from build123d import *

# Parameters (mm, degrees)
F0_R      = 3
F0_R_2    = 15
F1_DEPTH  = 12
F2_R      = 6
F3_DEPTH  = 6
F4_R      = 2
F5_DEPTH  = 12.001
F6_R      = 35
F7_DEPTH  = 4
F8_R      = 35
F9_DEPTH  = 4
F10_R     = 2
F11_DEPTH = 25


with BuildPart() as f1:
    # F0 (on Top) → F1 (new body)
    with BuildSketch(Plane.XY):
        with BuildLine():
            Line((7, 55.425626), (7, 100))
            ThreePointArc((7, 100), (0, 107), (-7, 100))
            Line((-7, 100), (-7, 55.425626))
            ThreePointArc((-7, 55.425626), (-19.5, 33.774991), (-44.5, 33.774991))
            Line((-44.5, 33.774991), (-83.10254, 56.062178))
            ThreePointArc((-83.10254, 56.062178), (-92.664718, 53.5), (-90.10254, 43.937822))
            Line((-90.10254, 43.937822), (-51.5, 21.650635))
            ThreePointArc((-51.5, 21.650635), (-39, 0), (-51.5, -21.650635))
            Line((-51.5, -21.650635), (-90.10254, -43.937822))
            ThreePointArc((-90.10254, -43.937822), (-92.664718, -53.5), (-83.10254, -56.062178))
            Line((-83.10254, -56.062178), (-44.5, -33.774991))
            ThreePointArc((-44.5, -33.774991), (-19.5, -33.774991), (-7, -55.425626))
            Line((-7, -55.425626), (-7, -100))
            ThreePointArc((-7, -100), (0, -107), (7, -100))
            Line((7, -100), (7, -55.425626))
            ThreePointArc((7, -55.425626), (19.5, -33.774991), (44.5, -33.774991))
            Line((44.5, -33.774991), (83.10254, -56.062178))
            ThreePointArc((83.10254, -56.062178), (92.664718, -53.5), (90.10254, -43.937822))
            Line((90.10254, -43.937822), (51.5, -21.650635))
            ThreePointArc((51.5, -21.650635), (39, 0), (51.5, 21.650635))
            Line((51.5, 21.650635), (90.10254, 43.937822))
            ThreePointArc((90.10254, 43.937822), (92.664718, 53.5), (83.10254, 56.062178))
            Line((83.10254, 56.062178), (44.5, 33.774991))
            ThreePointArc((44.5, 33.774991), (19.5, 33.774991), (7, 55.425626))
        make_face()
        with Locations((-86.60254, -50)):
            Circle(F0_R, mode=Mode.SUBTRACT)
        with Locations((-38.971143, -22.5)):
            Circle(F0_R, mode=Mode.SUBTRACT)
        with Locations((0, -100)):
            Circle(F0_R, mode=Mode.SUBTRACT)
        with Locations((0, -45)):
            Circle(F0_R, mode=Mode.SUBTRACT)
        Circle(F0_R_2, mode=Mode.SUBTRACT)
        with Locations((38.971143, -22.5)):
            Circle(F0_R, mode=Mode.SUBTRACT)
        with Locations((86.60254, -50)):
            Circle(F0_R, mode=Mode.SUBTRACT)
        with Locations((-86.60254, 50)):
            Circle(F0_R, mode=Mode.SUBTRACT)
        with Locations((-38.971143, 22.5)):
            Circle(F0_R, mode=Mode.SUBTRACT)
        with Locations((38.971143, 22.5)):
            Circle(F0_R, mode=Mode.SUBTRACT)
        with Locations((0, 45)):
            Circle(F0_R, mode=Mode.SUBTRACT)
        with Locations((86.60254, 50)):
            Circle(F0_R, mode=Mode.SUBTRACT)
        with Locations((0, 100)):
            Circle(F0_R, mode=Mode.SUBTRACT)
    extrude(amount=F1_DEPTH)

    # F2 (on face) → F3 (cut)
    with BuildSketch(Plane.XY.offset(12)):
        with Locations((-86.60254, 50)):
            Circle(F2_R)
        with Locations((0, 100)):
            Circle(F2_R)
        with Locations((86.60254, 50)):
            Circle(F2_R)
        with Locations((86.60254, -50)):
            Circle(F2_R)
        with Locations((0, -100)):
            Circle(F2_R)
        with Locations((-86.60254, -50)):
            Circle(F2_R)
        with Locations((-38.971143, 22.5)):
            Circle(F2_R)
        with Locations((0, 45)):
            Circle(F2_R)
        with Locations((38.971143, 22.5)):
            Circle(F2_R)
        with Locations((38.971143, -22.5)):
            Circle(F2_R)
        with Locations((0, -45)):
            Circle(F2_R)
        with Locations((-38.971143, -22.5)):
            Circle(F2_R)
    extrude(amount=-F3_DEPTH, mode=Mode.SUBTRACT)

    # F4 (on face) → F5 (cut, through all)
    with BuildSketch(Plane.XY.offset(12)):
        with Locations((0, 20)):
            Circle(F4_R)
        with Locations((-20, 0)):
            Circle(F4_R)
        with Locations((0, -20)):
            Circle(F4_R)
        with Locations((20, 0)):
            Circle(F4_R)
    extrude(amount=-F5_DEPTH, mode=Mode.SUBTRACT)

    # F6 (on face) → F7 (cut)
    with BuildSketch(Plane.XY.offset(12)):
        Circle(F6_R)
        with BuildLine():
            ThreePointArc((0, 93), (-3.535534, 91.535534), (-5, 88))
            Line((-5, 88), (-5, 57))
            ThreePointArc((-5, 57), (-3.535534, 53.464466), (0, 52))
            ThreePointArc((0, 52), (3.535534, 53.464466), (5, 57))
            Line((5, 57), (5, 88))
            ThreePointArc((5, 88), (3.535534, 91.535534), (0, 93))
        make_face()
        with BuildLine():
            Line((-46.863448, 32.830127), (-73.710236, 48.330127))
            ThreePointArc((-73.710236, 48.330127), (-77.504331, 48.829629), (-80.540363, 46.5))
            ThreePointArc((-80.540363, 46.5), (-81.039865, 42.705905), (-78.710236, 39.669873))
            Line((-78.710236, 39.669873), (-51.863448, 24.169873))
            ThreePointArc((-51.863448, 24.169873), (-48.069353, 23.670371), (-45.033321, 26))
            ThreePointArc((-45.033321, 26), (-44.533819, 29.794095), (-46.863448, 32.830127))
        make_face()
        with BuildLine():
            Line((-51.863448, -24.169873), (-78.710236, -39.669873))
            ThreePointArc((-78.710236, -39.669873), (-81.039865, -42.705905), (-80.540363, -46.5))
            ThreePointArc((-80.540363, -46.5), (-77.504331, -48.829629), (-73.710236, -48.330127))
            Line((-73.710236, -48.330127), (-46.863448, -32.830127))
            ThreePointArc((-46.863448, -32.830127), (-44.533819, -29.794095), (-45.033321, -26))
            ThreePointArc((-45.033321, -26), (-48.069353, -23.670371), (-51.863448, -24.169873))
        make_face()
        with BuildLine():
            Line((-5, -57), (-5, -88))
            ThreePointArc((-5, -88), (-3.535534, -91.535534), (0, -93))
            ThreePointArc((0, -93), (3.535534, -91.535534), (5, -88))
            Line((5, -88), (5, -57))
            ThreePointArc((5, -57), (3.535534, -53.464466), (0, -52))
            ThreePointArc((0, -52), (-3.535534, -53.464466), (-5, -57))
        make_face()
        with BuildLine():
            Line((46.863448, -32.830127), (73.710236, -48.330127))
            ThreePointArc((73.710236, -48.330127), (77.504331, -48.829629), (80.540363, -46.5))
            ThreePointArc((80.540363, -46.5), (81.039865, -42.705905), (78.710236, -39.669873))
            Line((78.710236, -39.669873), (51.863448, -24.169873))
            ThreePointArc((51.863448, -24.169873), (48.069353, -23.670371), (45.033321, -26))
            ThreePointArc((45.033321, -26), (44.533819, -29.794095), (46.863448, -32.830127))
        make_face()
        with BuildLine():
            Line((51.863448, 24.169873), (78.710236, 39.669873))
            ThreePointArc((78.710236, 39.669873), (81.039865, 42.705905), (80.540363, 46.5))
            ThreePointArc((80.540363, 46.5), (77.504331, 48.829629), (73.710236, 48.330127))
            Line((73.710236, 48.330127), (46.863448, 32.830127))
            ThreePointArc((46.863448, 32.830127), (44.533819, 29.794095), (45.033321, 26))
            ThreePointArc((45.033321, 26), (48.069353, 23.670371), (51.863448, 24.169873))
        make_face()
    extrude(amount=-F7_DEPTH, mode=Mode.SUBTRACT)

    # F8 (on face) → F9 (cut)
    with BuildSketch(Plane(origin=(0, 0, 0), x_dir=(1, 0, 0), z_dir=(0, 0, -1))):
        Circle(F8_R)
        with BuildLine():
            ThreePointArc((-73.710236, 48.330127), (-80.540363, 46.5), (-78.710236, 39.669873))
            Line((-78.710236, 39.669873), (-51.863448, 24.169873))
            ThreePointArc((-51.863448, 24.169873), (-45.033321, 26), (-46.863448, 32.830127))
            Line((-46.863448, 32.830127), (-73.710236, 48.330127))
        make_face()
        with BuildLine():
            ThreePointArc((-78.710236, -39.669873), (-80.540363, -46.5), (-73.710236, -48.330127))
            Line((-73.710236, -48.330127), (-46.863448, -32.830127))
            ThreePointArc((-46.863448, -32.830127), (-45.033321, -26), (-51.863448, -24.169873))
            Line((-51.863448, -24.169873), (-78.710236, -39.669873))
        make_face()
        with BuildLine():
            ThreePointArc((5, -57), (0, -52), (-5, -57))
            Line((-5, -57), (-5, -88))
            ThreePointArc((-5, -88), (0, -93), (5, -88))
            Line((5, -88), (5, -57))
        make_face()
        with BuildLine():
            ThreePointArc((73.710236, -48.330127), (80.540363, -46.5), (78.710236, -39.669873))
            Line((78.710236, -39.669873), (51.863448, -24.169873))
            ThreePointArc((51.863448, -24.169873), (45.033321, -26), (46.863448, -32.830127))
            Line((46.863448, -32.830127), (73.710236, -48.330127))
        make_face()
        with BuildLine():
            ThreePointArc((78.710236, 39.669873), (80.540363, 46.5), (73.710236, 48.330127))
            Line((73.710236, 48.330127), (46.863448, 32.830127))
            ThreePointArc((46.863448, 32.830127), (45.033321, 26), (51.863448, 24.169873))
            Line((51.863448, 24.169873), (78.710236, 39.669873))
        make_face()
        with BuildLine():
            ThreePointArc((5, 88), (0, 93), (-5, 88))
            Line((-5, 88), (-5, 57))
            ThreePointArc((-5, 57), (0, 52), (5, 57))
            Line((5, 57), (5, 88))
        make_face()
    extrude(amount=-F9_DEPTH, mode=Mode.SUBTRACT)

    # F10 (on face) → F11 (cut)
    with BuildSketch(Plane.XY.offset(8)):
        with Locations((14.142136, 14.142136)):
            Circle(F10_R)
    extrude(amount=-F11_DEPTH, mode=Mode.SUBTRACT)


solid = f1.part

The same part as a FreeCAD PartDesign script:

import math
import FreeCAD as App
import Part
import Sketcher
Q = App.Units.Quantity

doc = App.newDocument("Part")
params = doc.addObject("Spreadsheet::Sheet", "Params")
for row, (alias, value) in enumerate([
    ("sketch1_diameter", "6 mm"),
    ("sketch1_diameter2", "30 mm"),
    ("sketch1_radius", "7 mm"),
    ("sketch1_radius2", "25 mm"),
    ("pad1_length", "12 mm"),
    ("sketch2_diameter", "12 mm"),
    ("pocket1_length", "6 mm"),
    ("sketch3_diameter", "4 mm"),
    ("sketch4_diameter", "70 mm"),
    ("sketch4_radius", "5 mm"),
    ("sketch4_height", "31 mm"),
    ("sketch4_length", "31 mm"),
    ("pocket3_length", "4 mm"),
    ("sketch5_diameter", "70 mm"),
    ("sketch5_radius", "5 mm"),
    ("sketch5_height", "31 mm"),
    ("sketch5_length", "31 mm"),
    ("pocket4_length", "4 mm"),
    ("sketch6_diameter", "4 mm"),
    ("pocket5_length", "25 mm"),
], start=1):
    params.set(f"A{row}", alias)
    params.set(f"B{row}", "=" + value)
    params.setAlias(f"B{row}", alias)

body = doc.addObject("PartDesign::Body", "Body")

sketch1 = doc.addObject("Sketcher::SketchObject", "Sketch")
body.addObject(sketch1)
sketch1.AttachmentSupport = (doc.XY_Plane, [""])
sketch1.MapMode = "FlatFace"
sketch1.addGeometry(Part.LineSegment(App.Vector(7, 55.4, 0), App.Vector(7, 100, 0)), False)
sketch1.addGeometry(Part.ArcOfCircle(Part.Circle(App.Vector(0, 100, 0), App.Vector(0, 0, 1), 7), math.radians(0), math.radians(180)), False)
sketch1.addGeometry(Part.LineSegment(App.Vector(-7, 100, 0), App.Vector(-7, 55.4, 0)), False)
sketch1.addGeometry(Part.ArcOfCircle(Part.Circle(App.Vector(-32, 55.4, 0), App.Vector(0, 0, 1), 25), math.radians(-120), math.radians(0)), False)
sketch1.addGeometry(Part.LineSegment(App.Vector(-44.5, 33.8, 0), App.Vector(-83.1, 56.1, 0)), False)
sketch1.addGeometry(Part.ArcOfCircle(Part.Circle(App.Vector(-86.6, 50, 0), App.Vector(0, 0, 1), 7), math.radians(60), math.radians(240)), False)
sketch1.addGeometry(Part.LineSegment(App.Vector(-90.1, 43.9, 0), App.Vector(-51.5, 21.7, 0)), False)
sketch1.addGeometry(Part.ArcOfCircle(Part.Circle(App.Vector(-64, 0, 0), App.Vector(0, 0, 1), 25), math.radians(-60), math.radians(60)), False)
sketch1.addGeometry(Part.LineSegment(App.Vector(-51.5, -21.7, 0), App.Vector(-90.1, -43.9, 0)), False)
sketch1.addGeometry(Part.ArcOfCircle(Part.Circle(App.Vector(-86.6, -50, 0), App.Vector(0, 0, 1), 7), math.radians(120), math.radians(300)), False)
sketch1.addGeometry(Part.LineSegment(App.Vector(-83.1, -56.1, 0), App.Vector(-44.5, -33.8, 0)), False)
sketch1.addGeometry(Part.ArcOfCircle(Part.Circle(App.Vector(-32, -55.4, 0), App.Vector(0, 0, 1), 25), math.radians(0), math.radians(120)), False)
sketch1.addGeometry(Part.LineSegment(App.Vector(-7, -55.4, 0), App.Vector(-7, -100, 0)), False)
sketch1.addGeometry(Part.ArcOfCircle(Part.Circle(App.Vector(0, -100, 0), App.Vector(0, 0, 1), 7), math.radians(180), math.radians(360)), False)
sketch1.addGeometry(Part.LineSegment(App.Vector(7, -100, 0), App.Vector(7, -55.4, 0)), False)
sketch1.addGeometry(Part.ArcOfCircle(Part.Circle(App.Vector(32, -55.4, 0), App.Vector(0, 0, 1), 25), math.radians(60), math.radians(180)), False)
sketch1.addGeometry(Part.LineSegment(App.Vector(44.5, -33.8, 0), App.Vector(83.1, -56.1, 0)), False)
sketch1.addGeometry(Part.ArcOfCircle(Part.Circle(App.Vector(86.6, -50, 0), App.Vector(0, 0, 1), 7), math.radians(-120), math.radians(60)), False)
sketch1.addGeometry(Part.LineSegment(App.Vector(90.1, -43.9, 0), App.Vector(51.5, -21.7, 0)), False)
sketch1.addGeometry(Part.ArcOfCircle(Part.Circle(App.Vector(64, 0, 0), App.Vector(0, 0, 1), 25), math.radians(120), math.radians(240)), False)
sketch1.addGeometry(Part.LineSegment(App.Vector(51.5, 21.7, 0), App.Vector(90.1, 43.9, 0)), False)
sketch1.addGeometry(Part.ArcOfCircle(Part.Circle(App.Vector(86.6, 50, 0), App.Vector(0, 0, 1), 7), math.radians(-60), math.radians(120)), False)
sketch1.addGeometry(Part.LineSegment(App.Vector(83.1, 56.1, 0), App.Vector(44.5, 33.8, 0)), False)
sketch1.addGeometry(Part.ArcOfCircle(Part.Circle(App.Vector(32, 55.4, 0), App.Vector(0, 0, 1), 25), math.radians(-180), math.radians(-60)), False)
sketch1.addGeometry(Part.Circle(App.Vector(-86.6, -50, 0), App.Vector(0, 0, 1), 3), False)
sketch1.addGeometry(Part.Circle(App.Vector(-39, -22.5, 0), App.Vector(0, 0, 1), 3), False)
sketch1.addGeometry(Part.Circle(App.Vector(0, -100, 0), App.Vector(0, 0, 1), 3), False)
sketch1.addGeometry(Part.Circle(App.Vector(0, -45, 0), App.Vector(0, 0, 1), 3), False)
sketch1.addGeometry(Part.Circle(App.Vector(0, 0, 0), App.Vector(0, 0, 1), 15), False)
sketch1.addGeometry(Part.Circle(App.Vector(39, -22.5, 0), App.Vector(0, 0, 1), 3), False)
sketch1.addGeometry(Part.Circle(App.Vector(86.6, -50, 0), App.Vector(0, 0, 1), 3), False)
sketch1.addGeometry(Part.Circle(App.Vector(-86.6, 50, 0), App.Vector(0, 0, 1), 3), False)
sketch1.addGeometry(Part.Circle(App.Vector(-39, 22.5, 0), App.Vector(0, 0, 1), 3), False)
sketch1.addGeometry(Part.Circle(App.Vector(39, 22.5, 0), App.Vector(0, 0, 1), 3), False)
sketch1.addGeometry(Part.Circle(App.Vector(0, 45, 0), App.Vector(0, 0, 1), 3), False)
sketch1.addGeometry(Part.Circle(App.Vector(86.6, 50, 0), App.Vector(0, 0, 1), 3), False)
sketch1.addGeometry(Part.Circle(App.Vector(0, 100, 0), App.Vector(0, 0, 1), 3), False)
sketch1.addConstraint(Sketcher.Constraint("Tangent", 0, 2, 1, 1))
sketch1.addConstraint(Sketcher.Constraint("Tangent", 1, 2, 2, 1))
sketch1.addConstraint(Sketcher.Constraint("Tangent", 2, 2, 3, 2))
sketch1.addConstraint(Sketcher.Constraint("Tangent", 3, 1, 4, 1))
sketch1.addConstraint(Sketcher.Constraint("Tangent", 4, 2, 5, 1))
sketch1.addConstraint(Sketcher.Constraint("Tangent", 5, 2, 6, 1))
sketch1.addConstraint(Sketcher.Constraint("Tangent", 6, 2, 7, 2))
sketch1.addConstraint(Sketcher.Constraint("Tangent", 7, 1, 8, 1))
sketch1.addConstraint(Sketcher.Constraint("Tangent", 8, 2, 9, 1))
sketch1.addConstraint(Sketcher.Constraint("Tangent", 9, 2, 10, 1))
sketch1.addConstraint(Sketcher.Constraint("Tangent", 10, 2, 11, 2))
sketch1.addConstraint(Sketcher.Constraint("Tangent", 11, 1, 12, 1))
sketch1.addConstraint(Sketcher.Constraint("Tangent", 12, 2, 13, 1))
sketch1.addConstraint(Sketcher.Constraint("Tangent", 13, 2, 14, 1))
sketch1.addConstraint(Sketcher.Constraint("Tangent", 14, 2, 15, 2))
sketch1.addConstraint(Sketcher.Constraint("Tangent", 15, 1, 16, 1))
sketch1.addConstraint(Sketcher.Constraint("Tangent", 16, 2, 17, 1))
sketch1.addConstraint(Sketcher.Constraint("Tangent", 17, 2, 18, 1))
sketch1.addConstraint(Sketcher.Constraint("Tangent", 18, 2, 19, 2))
sketch1.addConstraint(Sketcher.Constraint("Tangent", 19, 1, 20, 1))
sketch1.addConstraint(Sketcher.Constraint("Tangent", 20, 2, 21, 1))
sketch1.addConstraint(Sketcher.Constraint("Tangent", 21, 2, 22, 1))
sketch1.addConstraint(Sketcher.Constraint("Tangent", 22, 2, 23, 2))
sketch1.addConstraint(Sketcher.Constraint("Tangent", 23, 1, 0, 1))
sketch1.addConstraint(Sketcher.Constraint("Vertical", 0))
sketch1.addConstraint(Sketcher.Constraint("Vertical", 2))
sketch1.addConstraint(Sketcher.Constraint("Vertical", 12))
sketch1.addConstraint(Sketcher.Constraint("Vertical", 14))
sketch1.addConstraint(Sketcher.Constraint("Coincident", 28, 3, -1, 1))
sketch1.addConstraint(Sketcher.Constraint("Coincident", 24, 3, 9, 3))
sketch1.addConstraint(Sketcher.Constraint("Coincident", 26, 3, 13, 3))
sketch1.addConstraint(Sketcher.Constraint("Coincident", 30, 3, 17, 3))
sketch1.addConstraint(Sketcher.Constraint("Coincident", 31, 3, 5, 3))
sketch1.addConstraint(Sketcher.Constraint("Coincident", 35, 3, 21, 3))
sketch1.addConstraint(Sketcher.Constraint("Coincident", 36, 3, 1, 3))
sketch1.addConstraint(Sketcher.Constraint("Equal", 1, 5))
sketch1.addConstraint(Sketcher.Constraint("Equal", 3, 7))
sketch1.addConstraint(Sketcher.Constraint("Equal", 5, 9))
sketch1.addConstraint(Sketcher.Constraint("Equal", 7, 11))
sketch1.addConstraint(Sketcher.Constraint("Equal", 9, 13))
sketch1.addConstraint(Sketcher.Constraint("Equal", 11, 15))
sketch1.addConstraint(Sketcher.Constraint("Equal", 13, 17))
sketch1.addConstraint(Sketcher.Constraint("Equal", 15, 19))
sketch1.addConstraint(Sketcher.Constraint("Equal", 17, 21))
sketch1.addConstraint(Sketcher.Constraint("Equal", 19, 23))
sketch1.addConstraint(Sketcher.Constraint("Equal", 24, 25))
sketch1.addConstraint(Sketcher.Constraint("Equal", 25, 26))
sketch1.addConstraint(Sketcher.Constraint("Equal", 26, 27))
sketch1.addConstraint(Sketcher.Constraint("Equal", 27, 29))
sketch1.addConstraint(Sketcher.Constraint("Equal", 29, 30))
sketch1.addConstraint(Sketcher.Constraint("Equal", 30, 31))
sketch1.addConstraint(Sketcher.Constraint("Equal", 31, 32))
sketch1.addConstraint(Sketcher.Constraint("Equal", 32, 33))
sketch1.addConstraint(Sketcher.Constraint("Equal", 33, 34))
sketch1.addConstraint(Sketcher.Constraint("Equal", 34, 35))
sketch1.addConstraint(Sketcher.Constraint("Equal", 35, 36))
sketch1.addConstraint(Sketcher.Constraint("Symmetric", 1, 3, 13, 3, -1, 1))
sketch1.addConstraint(Sketcher.Constraint("Symmetric", 5, 3, 17, 3, -1, 1))
sketch1.addConstraint(Sketcher.Constraint("Symmetric", 7, 3, 19, 3, -1, 1))
sketch1.addConstraint(Sketcher.Constraint("Symmetric", 9, 3, 21, 3, -1, 1))
sketch1.addConstraint(Sketcher.Constraint("Symmetric", 29, 3, 32, 3, -1, 1))
sketch1.addConstraint(Sketcher.Constraint("Symmetric", 25, 3, 33, 3, -1, 1))
sketch1.addConstraint(Sketcher.Constraint("Symmetric", 27, 3, 34, 3, -1, 1))
sketch1.addConstraint(Sketcher.Constraint("Symmetric", 11, 3, 15, 3, -2))
sketch1.addConstraint(Sketcher.Constraint("Symmetric", 9, 3, 17, 3, -2))
sketch1.addConstraint(Sketcher.Constraint("Symmetric", 25, 3, 29, 3, -2))
sketch1.addConstraint(Sketcher.Constraint("PointOnObject", 7, 3, -1))
sketch1.addConstraint(Sketcher.Constraint("PointOnObject", 27, 3, -2))
sketch1.addConstraint(Sketcher.Constraint("Parallel", 4, 6))
sketch1.addConstraint(Sketcher.Constraint("Parallel", 8, 10))
sketch1.addConstraint(Sketcher.Constraint("Parallel", 20, 22))
sketch1.addConstraint(Sketcher.Constraint("Equal", 4, 6))
sketch1.addConstraint(Sketcher.Constraint("Diameter", 24, Q("6 mm")))
sketch1.addConstraint(Sketcher.Constraint("Diameter", 28, Q("30 mm")))
sketch1.addConstraint(Sketcher.Constraint("Radius", 1, Q("7 mm")))
sketch1.addConstraint(Sketcher.Constraint("Radius", 3, Q("25 mm")))
sketch1.addConstraint(Sketcher.Constraint("Angle", 4, Q("150 deg")))
sketch1.addConstraint(Sketcher.Constraint("DistanceY", -1, 1, 1, 3, Q("100 mm")))
sketch1.addConstraint(Sketcher.Constraint("DistanceY", -1, 1, 5, 3, Q("50 mm")))
sketch1.addConstraint(Sketcher.Constraint("DistanceY", 27, 3, -1, 1, Q("45 mm")))
sketch1.addConstraint(Sketcher.Constraint("DistanceY", 25, 3, 32, 3, Q("45 mm")))
sketch1.addConstraint(Sketcher.Constraint("DistanceX", 25, 3, -1, 1, Q("38.971143 mm")))
sketch1.setExpression("Constraints[72]", "Params.sketch1_diameter")
sketch1.setExpression("Constraints[73]", "Params.sketch1_diameter2")
sketch1.setExpression("Constraints[74]", "Params.sketch1_radius")
sketch1.setExpression("Constraints[75]", "Params.sketch1_radius2")
pad1 = doc.addObject("PartDesign::Pad", "Pad")
body.addObject(pad1)
pad1.Profile = sketch1
pad1.setExpression("Length", "Params.pad1_length")

sketch2 = doc.addObject("Sketcher::SketchObject", "Sketch001")
body.addObject(sketch2)
sketch2.AttachmentSupport = (doc.XY_Plane, [""])
sketch2.MapMode = "FlatFace"
sketch2.AttachmentOffset = App.Placement(App.Vector(0, 0, 12), App.Rotation())
sketch2.addGeometry(Part.Circle(App.Vector(-87, 50, 0), App.Vector(0, 0, 1), 6), False)
sketch2.addGeometry(Part.Circle(App.Vector(0, 100, 0), App.Vector(0, 0, 1), 6), False)
sketch2.addGeometry(Part.Circle(App.Vector(87, 50, 0), App.Vector(0, 0, 1), 6), False)
sketch2.addGeometry(Part.Circle(App.Vector(87, -50, 0), App.Vector(0, 0, 1), 6), False)
sketch2.addGeometry(Part.Circle(App.Vector(0, -100, 0), App.Vector(0, 0, 1), 6), False)
sketch2.addGeometry(Part.Circle(App.Vector(-87, -50, 0), App.Vector(0, 0, 1), 6), False)
sketch2.addGeometry(Part.Circle(App.Vector(-39, 22, 0), App.Vector(0, 0, 1), 6), False)
sketch2.addGeometry(Part.Circle(App.Vector(0, 45, 0), App.Vector(0, 0, 1), 6), False)
sketch2.addGeometry(Part.Circle(App.Vector(39, 22, 0), App.Vector(0, 0, 1), 6), False)
sketch2.addGeometry(Part.Circle(App.Vector(39, -22, 0), App.Vector(0, 0, 1), 6), False)
sketch2.addGeometry(Part.Circle(App.Vector(0, -45, 0), App.Vector(0, 0, 1), 6), False)
sketch2.addGeometry(Part.Circle(App.Vector(-39, -22, 0), App.Vector(0, 0, 1), 6), False)
sketch2.addConstraint(Sketcher.Constraint("Equal", 0, 1))
sketch2.addConstraint(Sketcher.Constraint("Equal", 1, 2))
sketch2.addConstraint(Sketcher.Constraint("Equal", 2, 3))
sketch2.addConstraint(Sketcher.Constraint("Equal", 3, 4))
sketch2.addConstraint(Sketcher.Constraint("Equal", 4, 5))
sketch2.addConstraint(Sketcher.Constraint("Equal", 5, 6))
sketch2.addConstraint(Sketcher.Constraint("Equal", 6, 7))
sketch2.addConstraint(Sketcher.Constraint("Equal", 7, 8))
sketch2.addConstraint(Sketcher.Constraint("Equal", 8, 9))
sketch2.addConstraint(Sketcher.Constraint("Equal", 9, 10))
sketch2.addConstraint(Sketcher.Constraint("Equal", 10, 11))
sketch2.addConstraint(Sketcher.Constraint("Symmetric", 0, 3, 3, 3, -1, 1))
sketch2.addConstraint(Sketcher.Constraint("Symmetric", 1, 3, 4, 3, -1, 1))
sketch2.addConstraint(Sketcher.Constraint("Symmetric", 2, 3, 5, 3, -1, 1))
sketch2.addConstraint(Sketcher.Constraint("Symmetric", 6, 3, 9, 3, -1, 1))
sketch2.addConstraint(Sketcher.Constraint("Symmetric", 7, 3, 10, 3, -1, 1))
sketch2.addConstraint(Sketcher.Constraint("Symmetric", 8, 3, 11, 3, -1, 1))
sketch2.addConstraint(Sketcher.Constraint("Symmetric", 0, 3, 2, 3, -2))
sketch2.addConstraint(Sketcher.Constraint("Symmetric", 6, 3, 8, 3, -2))
sketch2.addConstraint(Sketcher.Constraint("PointOnObject", 1, 3, -2))
sketch2.addConstraint(Sketcher.Constraint("PointOnObject", 7, 3, -2))
sketch2.addConstraint(Sketcher.Constraint("Diameter", 0, Q("12 mm")))
sketch2.addConstraint(Sketcher.Constraint("DistanceY", -1, 1, 0, 3, Q("50 mm")))
sketch2.addConstraint(Sketcher.Constraint("DistanceY", -1, 1, 1, 3, Q("100 mm")))
sketch2.addConstraint(Sketcher.Constraint("DistanceY", -1, 1, 7, 3, Q("45 mm")))
sketch2.addConstraint(Sketcher.Constraint("DistanceY", 9, 3, 8, 3, Q("45 mm")))
sketch2.addConstraint(Sketcher.Constraint("DistanceX", 0, 3, -1, 1, Q("86.60254 mm")))
sketch2.addConstraint(Sketcher.Constraint("DistanceX", 6, 3, -1, 1, Q("38.971143 mm")))
sketch2.setExpression("Constraints[21]", "Params.sketch2_diameter")
pocket1 = doc.addObject("PartDesign::Pocket", "Pocket")
body.addObject(pocket1)
pocket1.Profile = sketch2
pocket1.setExpression("Length", "Params.pocket1_length")

sketch3 = doc.addObject("Sketcher::SketchObject", "Sketch002")
body.addObject(sketch3)
sketch3.AttachmentSupport = (doc.XY_Plane, [""])
sketch3.MapMode = "FlatFace"
sketch3.AttachmentOffset = App.Placement(App.Vector(0, 0, 12), App.Rotation())
sketch3.addGeometry(Part.Circle(App.Vector(0, 20, 0), App.Vector(0, 0, 1), 2), False)
sketch3.addGeometry(Part.Circle(App.Vector(-20, 0, 0), App.Vector(0, 0, 1), 2), False)
sketch3.addGeometry(Part.Circle(App.Vector(0, -20, 0), App.Vector(0, 0, 1), 2), False)
sketch3.addGeometry(Part.Circle(App.Vector(20, 0, 0), App.Vector(0, 0, 1), 2), False)
sketch3.addConstraint(Sketcher.Constraint("Equal", 0, 1))
sketch3.addConstraint(Sketcher.Constraint("Equal", 1, 2))
sketch3.addConstraint(Sketcher.Constraint("Equal", 2, 3))
sketch3.addConstraint(Sketcher.Constraint("Symmetric", 0, 3, 2, 3, -1, 1))
sketch3.addConstraint(Sketcher.Constraint("Symmetric", 1, 3, 3, 3, -1, 1))
sketch3.addConstraint(Sketcher.Constraint("PointOnObject", 0, 3, -2))
sketch3.addConstraint(Sketcher.Constraint("PointOnObject", 1, 3, -1))
sketch3.addConstraint(Sketcher.Constraint("Diameter", 0, Q("4 mm")))
sketch3.addConstraint(Sketcher.Constraint("DistanceY", -1, 1, 0, 3, Q("20 mm")))
sketch3.addConstraint(Sketcher.Constraint("DistanceX", 1, 3, -1, 1, Q("20 mm")))
sketch3.setExpression("Constraints[7]", "Params.sketch3_diameter")
pocket2 = doc.addObject("PartDesign::Pocket", "Pocket001")
body.addObject(pocket2)
pocket2.Profile = sketch3
pocket2.Type = "ThroughAll"

sketch4 = doc.addObject("Sketcher::SketchObject", "Sketch003")
body.addObject(sketch4)
sketch4.AttachmentSupport = (doc.XY_Plane, [""])
sketch4.MapMode = "FlatFace"
sketch4.AttachmentOffset = App.Placement(App.Vector(0, 0, 12), App.Rotation())
sketch4.addGeometry(Part.Circle(App.Vector(0, 0, 0), App.Vector(0, 0, 1), 35), False)
sketch4.addGeometry(Part.ArcOfCircle(Part.Circle(App.Vector(0, 88, 0), App.Vector(0, 0, 1), 5), math.radians(90), math.radians(180)), False)
sketch4.addGeometry(Part.LineSegment(App.Vector(-5, 88, 0), App.Vector(-5, 57, 0)), False)
sketch4.addGeometry(Part.ArcOfCircle(Part.Circle(App.Vector(0, 57, 0), App.Vector(0, 0, 1), 5), math.radians(180), math.radians(270)), False)
sketch4.addGeometry(Part.ArcOfCircle(Part.Circle(App.Vector(0, 57, 0), App.Vector(0, 0, 1), 5), math.radians(-90), math.radians(0)), False)
sketch4.addGeometry(Part.LineSegment(App.Vector(5, 57, 0), App.Vector(5, 88, 0)), False)
sketch4.addGeometry(Part.ArcOfCircle(Part.Circle(App.Vector(0, 88, 0), App.Vector(0, 0, 1), 5), math.radians(0), math.radians(90)), False)
sketch4.addGeometry(Part.LineSegment(App.Vector(-46.9, 32.8, 0), App.Vector(-73.7, 48.3, 0)), False)
sketch4.addGeometry(Part.ArcOfCircle(Part.Circle(App.Vector(-76.2, 44, 0), App.Vector(0, 0, 1), 5), math.radians(60), math.radians(150)), False)
sketch4.addGeometry(Part.ArcOfCircle(Part.Circle(App.Vector(-76.2, 44, 0), App.Vector(0, 0, 1), 5), math.radians(150), math.radians(240)), False)
sketch4.addGeometry(Part.LineSegment(App.Vector(-78.7, 39.7, 0), App.Vector(-51.9, 24.2, 0)), False)
sketch4.addGeometry(Part.ArcOfCircle(Part.Circle(App.Vector(-49.4, 28.5, 0), App.Vector(0, 0, 1), 5), math.radians(-120), math.radians(-30)), False)
sketch4.addGeometry(Part.ArcOfCircle(Part.Circle(App.Vector(-49.4, 28.5, 0), App.Vector(0, 0, 1), 5), math.radians(-30), math.radians(60)), False)
sketch4.addGeometry(Part.LineSegment(App.Vector(-51.9, -24.2, 0), App.Vector(-78.7, -39.7, 0)), False)
sketch4.addGeometry(Part.ArcOfCircle(Part.Circle(App.Vector(-76.2, -44, 0), App.Vector(0, 0, 1), 5), math.radians(120), math.radians(210)), False)
sketch4.addGeometry(Part.ArcOfCircle(Part.Circle(App.Vector(-76.2, -44, 0), App.Vector(0, 0, 1), 5), math.radians(-150), math.radians(-60)), False)
sketch4.addGeometry(Part.LineSegment(App.Vector(-73.7, -48.3, 0), App.Vector(-46.9, -32.8, 0)), False)
sketch4.addGeometry(Part.ArcOfCircle(Part.Circle(App.Vector(-49.4, -28.5, 0), App.Vector(0, 0, 1), 5), math.radians(-60), math.radians(30)), False)
sketch4.addGeometry(Part.ArcOfCircle(Part.Circle(App.Vector(-49.4, -28.5, 0), App.Vector(0, 0, 1), 5), math.radians(30), math.radians(120)), False)
sketch4.addGeometry(Part.LineSegment(App.Vector(-5, -57, 0), App.Vector(-5, -88, 0)), False)
sketch4.addGeometry(Part.ArcOfCircle(Part.Circle(App.Vector(0, -88, 0), App.Vector(0, 0, 1), 5), math.radians(180), math.radians(270)), False)
sketch4.addGeometry(Part.ArcOfCircle(Part.Circle(App.Vector(0, -88, 0), App.Vector(0, 0, 1), 5), math.radians(-90), math.radians(0)), False)
sketch4.addGeometry(Part.LineSegment(App.Vector(5, -88, 0), App.Vector(5, -57, 0)), False)
sketch4.addGeometry(Part.ArcOfCircle(Part.Circle(App.Vector(0, -57, 0), App.Vector(0, 0, 1), 5), math.radians(0), math.radians(90)), False)
sketch4.addGeometry(Part.ArcOfCircle(Part.Circle(App.Vector(0, -57, 0), App.Vector(0, 0, 1), 5), math.radians(90), math.radians(180)), False)
sketch4.addGeometry(Part.LineSegment(App.Vector(46.9, -32.8, 0), App.Vector(73.7, -48.3, 0)), False)
sketch4.addGeometry(Part.ArcOfCircle(Part.Circle(App.Vector(76.2, -44, 0), App.Vector(0, 0, 1), 5), math.radians(-120), math.radians(-30)), False)
sketch4.addGeometry(Part.ArcOfCircle(Part.Circle(App.Vector(76.2, -44, 0), App.Vector(0, 0, 1), 5), math.radians(-30), math.radians(60)), False)
sketch4.addGeometry(Part.LineSegment(App.Vector(78.7, -39.7, 0), App.Vector(51.9, -24.2, 0)), False)
sketch4.addGeometry(Part.ArcOfCircle(Part.Circle(App.Vector(49.4, -28.5, 0), App.Vector(0, 0, 1), 5), math.radians(60), math.radians(150)), False)
sketch4.addGeometry(Part.ArcOfCircle(Part.Circle(App.Vector(49.4, -28.5, 0), App.Vector(0, 0, 1), 5), math.radians(150), math.radians(240)), False)
sketch4.addGeometry(Part.LineSegment(App.Vector(51.9, 24.2, 0), App.Vector(78.7, 39.7, 0)), False)
sketch4.addGeometry(Part.ArcOfCircle(Part.Circle(App.Vector(76.2, 44, 0), App.Vector(0, 0, 1), 5), math.radians(-60), math.radians(30)), False)
sketch4.addGeometry(Part.ArcOfCircle(Part.Circle(App.Vector(76.2, 44, 0), App.Vector(0, 0, 1), 5), math.radians(30), math.radians(120)), False)
sketch4.addGeometry(Part.LineSegment(App.Vector(73.7, 48.3, 0), App.Vector(46.9, 32.8, 0)), False)
sketch4.addGeometry(Part.ArcOfCircle(Part.Circle(App.Vector(49.4, 28.5, 0), App.Vector(0, 0, 1), 5), math.radians(120), math.radians(210)), False)
sketch4.addGeometry(Part.ArcOfCircle(Part.Circle(App.Vector(49.4, 28.5, 0), App.Vector(0, 0, 1), 5), math.radians(-150), math.radians(-60)), False)
sketch4.addConstraint(Sketcher.Constraint("Tangent", 1, 2, 2, 1))
sketch4.addConstraint(Sketcher.Constraint("Tangent", 2, 2, 3, 1))
sketch4.addConstraint(Sketcher.Constraint("Tangent", 3, 2, 4, 1))
sketch4.addConstraint(Sketcher.Constraint("Tangent", 4, 2, 5, 1))
sketch4.addConstraint(Sketcher.Constraint("Tangent", 5, 2, 6, 1))
sketch4.addConstraint(Sketcher.Constraint("Tangent", 6, 2, 1, 1))
sketch4.addConstraint(Sketcher.Constraint("Tangent", 7, 2, 8, 1))
sketch4.addConstraint(Sketcher.Constraint("Tangent", 8, 2, 9, 1))
sketch4.addConstraint(Sketcher.Constraint("Tangent", 9, 2, 10, 1))
sketch4.addConstraint(Sketcher.Constraint("Tangent", 10, 2, 11, 1))
sketch4.addConstraint(Sketcher.Constraint("Tangent", 11, 2, 12, 1))
sketch4.addConstraint(Sketcher.Constraint("Tangent", 12, 2, 7, 1))
sketch4.addConstraint(Sketcher.Constraint("Tangent", 13, 2, 14, 1))
sketch4.addConstraint(Sketcher.Constraint("Tangent", 14, 2, 15, 1))
sketch4.addConstraint(Sketcher.Constraint("Tangent", 15, 2, 16, 1))
sketch4.addConstraint(Sketcher.Constraint("Tangent", 16, 2, 17, 1))
sketch4.addConstraint(Sketcher.Constraint("Tangent", 17, 2, 18, 1))
sketch4.addConstraint(Sketcher.Constraint("Tangent", 18, 2, 13, 1))
sketch4.addConstraint(Sketcher.Constraint("Tangent", 19, 2, 20, 1))
sketch4.addConstraint(Sketcher.Constraint("Tangent", 20, 2, 21, 1))
sketch4.addConstraint(Sketcher.Constraint("Tangent", 21, 2, 22, 1))
sketch4.addConstraint(Sketcher.Constraint("Tangent", 22, 2, 23, 1))
sketch4.addConstraint(Sketcher.Constraint("Tangent", 23, 2, 24, 1))
sketch4.addConstraint(Sketcher.Constraint("Tangent", 24, 2, 19, 1))
sketch4.addConstraint(Sketcher.Constraint("Tangent", 25, 2, 26, 1))
sketch4.addConstraint(Sketcher.Constraint("Tangent", 26, 2, 27, 1))
sketch4.addConstraint(Sketcher.Constraint("Tangent", 27, 2, 28, 1))
sketch4.addConstraint(Sketcher.Constraint("Tangent", 28, 2, 29, 1))
sketch4.addConstraint(Sketcher.Constraint("Tangent", 29, 2, 30, 1))
sketch4.addConstraint(Sketcher.Constraint("Tangent", 30, 2, 25, 1))
sketch4.addConstraint(Sketcher.Constraint("Tangent", 31, 2, 32, 1))
sketch4.addConstraint(Sketcher.Constraint("Tangent", 32, 2, 33, 1))
sketch4.addConstraint(Sketcher.Constraint("Tangent", 33, 2, 34, 1))
sketch4.addConstraint(Sketcher.Constraint("Tangent", 34, 2, 35, 1))
sketch4.addConstraint(Sketcher.Constraint("Tangent", 35, 2, 36, 1))
sketch4.addConstraint(Sketcher.Constraint("Tangent", 36, 2, 31, 1))
sketch4.addConstraint(Sketcher.Constraint("Vertical", 2))
sketch4.addConstraint(Sketcher.Constraint("Vertical", 5))
sketch4.addConstraint(Sketcher.Constraint("Vertical", 19))
sketch4.addConstraint(Sketcher.Constraint("Vertical", 22))
sketch4.addConstraint(Sketcher.Constraint("Coincident", 0, 3, -1, 1))
sketch4.addConstraint(Sketcher.Constraint("Equal", 1, 3))
sketch4.addConstraint(Sketcher.Constraint("Equal", 3, 4))
sketch4.addConstraint(Sketcher.Constraint("Equal", 6, 8))
sketch4.addConstraint(Sketcher.Constraint("Equal", 8, 9))
sketch4.addConstraint(Sketcher.Constraint("Equal", 9, 11))
sketch4.addConstraint(Sketcher.Constraint("Equal", 11, 12))
sketch4.addConstraint(Sketcher.Constraint("Equal", 12, 14))
sketch4.addConstraint(Sketcher.Constraint("Equal", 14, 15))
sketch4.addConstraint(Sketcher.Constraint("Equal", 15, 17))
sketch4.addConstraint(Sketcher.Constraint("Equal", 17, 18))
sketch4.addConstraint(Sketcher.Constraint("Equal", 18, 20))
sketch4.addConstraint(Sketcher.Constraint("Equal", 20, 21))
sketch4.addConstraint(Sketcher.Constraint("Equal", 21, 23))
sketch4.addConstraint(Sketcher.Constraint("Equal", 24, 26))
sketch4.addConstraint(Sketcher.Constraint("Equal", 26, 27))
sketch4.addConstraint(Sketcher.Constraint("Equal", 27, 29))
sketch4.addConstraint(Sketcher.Constraint("Equal", 29, 30))
sketch4.addConstraint(Sketcher.Constraint("Equal", 30, 32))
sketch4.addConstraint(Sketcher.Constraint("Equal", 32, 33))
sketch4.addConstraint(Sketcher.Constraint("Equal", 33, 35))
sketch4.addConstraint(Sketcher.Constraint("Equal", 35, 36))
sketch4.addConstraint(Sketcher.Constraint("Symmetric", 1, 3, 20, 3, -1, 1))
sketch4.addConstraint(Sketcher.Constraint("Symmetric", 8, 3, 26, 3, -1, 1))
sketch4.addConstraint(Sketcher.Constraint("Symmetric", 11, 3, 29, 3, -1, 1))
sketch4.addConstraint(Sketcher.Constraint("Symmetric", 14, 3, 32, 3, -1, 1))
sketch4.addConstraint(Sketcher.Constraint("Symmetric", 17, 3, 35, 3, -1, 1))
sketch4.addConstraint(Sketcher.Constraint("Symmetric", 3, 2, 23, 2, -1, 1))
sketch4.addConstraint(Sketcher.Constraint("Symmetric", 14, 3, 26, 3, -2))
sketch4.addConstraint(Sketcher.Constraint("Symmetric", 17, 3, 29, 3, -2))
sketch4.addConstraint(Sketcher.Constraint("PointOnObject", 1, 3, -2))
sketch4.addConstraint(Sketcher.Constraint("PointOnObject", 3, 2, -2))
sketch4.addConstraint(Sketcher.Constraint("PointOnObject", 6, 2, -2))
sketch4.addConstraint(Sketcher.Constraint("PointOnObject", 20, 2, -2))
sketch4.addConstraint(Sketcher.Constraint("Horizontal", 14, 2, 26, 2))
sketch4.addConstraint(Sketcher.Constraint("Horizontal", 17, 2, 29, 2))
sketch4.addConstraint(Sketcher.Constraint("Horizontal", 8, 2, 32, 2))
sketch4.addConstraint(Sketcher.Constraint("Horizontal", 11, 2, 35, 2))
sketch4.addConstraint(Sketcher.Constraint("Vertical", 8, 2, 14, 2))
sketch4.addConstraint(Sketcher.Constraint("Vertical", 11, 2, 17, 2))
sketch4.addConstraint(Sketcher.Constraint("Diameter", 0, Q("70 mm")))
sketch4.addConstraint(Sketcher.Constraint("Radius", 1, Q("5 mm")))
sketch4.addConstraint(Sketcher.Constraint("DistanceY", 2, 2, 2, 1, Q("31 mm")))
sketch4.addConstraint(Sketcher.Constraint("Angle", 7, Q("150 deg")))
sketch4.addConstraint(Sketcher.Constraint("Distance", 7, Q("31 mm")))
sketch4.addConstraint(Sketcher.Constraint("DistanceY", -1, 1, 1, 3, Q("88 mm")))
sketch4.addConstraint(Sketcher.Constraint("DistanceY", -1, 1, 8, 3, Q("43.999999 mm")))
sketch4.addConstraint(Sketcher.Constraint("DistanceY", -1, 1, 11, 2, Q("26 mm")))
sketch4.addConstraint(Sketcher.Constraint("DistanceY", -1, 1, 8, 2, Q("46.5 mm")))
sketch4.addConstraint(Sketcher.Constraint("DistanceX", 11, 3, -1, 1, Q("49.363448 mm")))
sketch4.setExpression("Constraints[80]", "Params.sketch4_diameter")
sketch4.setExpression("Constraints[81]", "Params.sketch4_radius")
sketch4.setExpression("Constraints[82]", "Params.sketch4_height")
sketch4.setExpression("Constraints[84]", "Params.sketch4_length")
pocket3 = doc.addObject("PartDesign::Pocket", "Pocket002")
body.addObject(pocket3)
pocket3.Profile = sketch4
pocket3.setExpression("Length", "Params.pocket3_length")

sketch5 = doc.addObject("Sketcher::SketchObject", "Sketch004")
body.addObject(sketch5)
sketch5.AttachmentSupport = (doc.XY_Plane, [""])
sketch5.MapMode = "FlatFace"
sketch5.addGeometry(Part.Circle(App.Vector(0, 0, 0), App.Vector(0, 0, 1), 35), False)
sketch5.addGeometry(Part.ArcOfCircle(Part.Circle(App.Vector(-76.2, -44, 0), App.Vector(0, 0, 1), 5), math.radians(120), math.radians(300)), False)
sketch5.addGeometry(Part.LineSegment(App.Vector(-78.7, -39.7, 0), App.Vector(-51.9, -24.2, 0)), False)
sketch5.addGeometry(Part.ArcOfCircle(Part.Circle(App.Vector(-49.4, -28.5, 0), App.Vector(0, 0, 1), 5), math.radians(-60), math.radians(120)), False)
sketch5.addGeometry(Part.LineSegment(App.Vector(-46.9, -32.8, 0), App.Vector(-73.7, -48.3, 0)), False)
sketch5.addGeometry(Part.ArcOfCircle(Part.Circle(App.Vector(-76.2, 44, 0), App.Vector(0, 0, 1), 5), math.radians(60), math.radians(240)), False)
sketch5.addGeometry(Part.LineSegment(App.Vector(-73.7, 48.3, 0), App.Vector(-46.9, 32.8, 0)), False)
sketch5.addGeometry(Part.ArcOfCircle(Part.Circle(App.Vector(-49.4, 28.5, 0), App.Vector(0, 0, 1), 5), math.radians(-120), math.radians(60)), False)
sketch5.addGeometry(Part.LineSegment(App.Vector(-51.9, 24.2, 0), App.Vector(-78.7, 39.7, 0)), False)
sketch5.addGeometry(Part.ArcOfCircle(Part.Circle(App.Vector(0, 57, 0), App.Vector(0, 0, 1), 5), math.radians(180), math.radians(360)), False)
sketch5.addGeometry(Part.LineSegment(App.Vector(-5, 57, 0), App.Vector(-5, 88, 0)), False)
sketch5.addGeometry(Part.ArcOfCircle(Part.Circle(App.Vector(0, 88, 0), App.Vector(0, 0, 1), 5), math.radians(0), math.radians(180)), False)
sketch5.addGeometry(Part.LineSegment(App.Vector(5, 88, 0), App.Vector(5, 57, 0)), False)
sketch5.addGeometry(Part.ArcOfCircle(Part.Circle(App.Vector(76.2, 44, 0), App.Vector(0, 0, 1), 5), math.radians(-60), math.radians(120)), False)
sketch5.addGeometry(Part.LineSegment(App.Vector(78.7, 39.7, 0), App.Vector(51.9, 24.2, 0)), False)
sketch5.addGeometry(Part.ArcOfCircle(Part.Circle(App.Vector(49.4, 28.5, 0), App.Vector(0, 0, 1), 5), math.radians(120), math.radians(300)), False)
sketch5.addGeometry(Part.LineSegment(App.Vector(46.9, 32.8, 0), App.Vector(73.7, 48.3, 0)), False)
sketch5.addGeometry(Part.ArcOfCircle(Part.Circle(App.Vector(76.2, -44, 0), App.Vector(0, 0, 1), 5), math.radians(-120), math.radians(60)), False)
sketch5.addGeometry(Part.LineSegment(App.Vector(73.7, -48.3, 0), App.Vector(46.9, -32.8, 0)), False)
sketch5.addGeometry(Part.ArcOfCircle(Part.Circle(App.Vector(49.4, -28.5, 0), App.Vector(0, 0, 1), 5), math.radians(60), math.radians(240)), False)
sketch5.addGeometry(Part.LineSegment(App.Vector(51.9, -24.2, 0), App.Vector(78.7, -39.7, 0)), False)
sketch5.addGeometry(Part.ArcOfCircle(Part.Circle(App.Vector(0, -88, 0), App.Vector(0, 0, 1), 5), math.radians(180), math.radians(360)), False)
sketch5.addGeometry(Part.LineSegment(App.Vector(-5, -88, 0), App.Vector(-5, -57, 0)), False)
sketch5.addGeometry(Part.ArcOfCircle(Part.Circle(App.Vector(0, -57, 0), App.Vector(0, 0, 1), 5), math.radians(0), math.radians(180)), False)
sketch5.addGeometry(Part.LineSegment(App.Vector(5, -57, 0), App.Vector(5, -88, 0)), False)
sketch5.addConstraint(Sketcher.Constraint("Tangent", 1, 1, 2, 1))
sketch5.addConstraint(Sketcher.Constraint("Tangent", 2, 2, 3, 2))
sketch5.addConstraint(Sketcher.Constraint("Tangent", 3, 1, 4, 1))
sketch5.addConstraint(Sketcher.Constraint("Tangent", 4, 2, 1, 2))
sketch5.addConstraint(Sketcher.Constraint("Tangent", 5, 1, 6, 1))
sketch5.addConstraint(Sketcher.Constraint("Tangent", 6, 2, 7, 2))
sketch5.addConstraint(Sketcher.Constraint("Tangent", 7, 1, 8, 1))
sketch5.addConstraint(Sketcher.Constraint("Tangent", 8, 2, 5, 2))
sketch5.addConstraint(Sketcher.Constraint("Tangent", 9, 1, 10, 1))
sketch5.addConstraint(Sketcher.Constraint("Tangent", 10, 2, 11, 2))
sketch5.addConstraint(Sketcher.Constraint("Tangent", 11, 1, 12, 1))
sketch5.addConstraint(Sketcher.Constraint("Tangent", 12, 2, 9, 2))
sketch5.addConstraint(Sketcher.Constraint("Tangent", 13, 1, 14, 1))
sketch5.addConstraint(Sketcher.Constraint("Tangent", 14, 2, 15, 2))
sketch5.addConstraint(Sketcher.Constraint("Tangent", 15, 1, 16, 1))
sketch5.addConstraint(Sketcher.Constraint("Tangent", 16, 2, 13, 2))
sketch5.addConstraint(Sketcher.Constraint("Tangent", 17, 1, 18, 1))
sketch5.addConstraint(Sketcher.Constraint("Tangent", 18, 2, 19, 2))
sketch5.addConstraint(Sketcher.Constraint("Tangent", 19, 1, 20, 1))
sketch5.addConstraint(Sketcher.Constraint("Tangent", 20, 2, 17, 2))
sketch5.addConstraint(Sketcher.Constraint("Tangent", 21, 1, 22, 1))
sketch5.addConstraint(Sketcher.Constraint("Tangent", 22, 2, 23, 2))
sketch5.addConstraint(Sketcher.Constraint("Tangent", 23, 1, 24, 1))
sketch5.addConstraint(Sketcher.Constraint("Tangent", 24, 2, 21, 2))
sketch5.addConstraint(Sketcher.Constraint("Vertical", 10))
sketch5.addConstraint(Sketcher.Constraint("Vertical", 12))
sketch5.addConstraint(Sketcher.Constraint("Vertical", 22))
sketch5.addConstraint(Sketcher.Constraint("Vertical", 24))
sketch5.addConstraint(Sketcher.Constraint("Coincident", 0, 3, -1, 1))
sketch5.addConstraint(Sketcher.Constraint("Equal", 1, 3))
sketch5.addConstraint(Sketcher.Constraint("Equal", 3, 5))
sketch5.addConstraint(Sketcher.Constraint("Equal", 5, 7))
sketch5.addConstraint(Sketcher.Constraint("Equal", 7, 9))
sketch5.addConstraint(Sketcher.Constraint("Equal", 11, 13))
sketch5.addConstraint(Sketcher.Constraint("Equal", 13, 15))
sketch5.addConstraint(Sketcher.Constraint("Equal", 15, 17))
sketch5.addConstraint(Sketcher.Constraint("Equal", 17, 19))
sketch5.addConstraint(Sketcher.Constraint("Equal", 19, 21))
sketch5.addConstraint(Sketcher.Constraint("Symmetric", 1, 3, 13, 3, -1, 1))
sketch5.addConstraint(Sketcher.Constraint("Symmetric", 3, 3, 15, 3, -1, 1))
sketch5.addConstraint(Sketcher.Constraint("Symmetric", 5, 3, 17, 3, -1, 1))
sketch5.addConstraint(Sketcher.Constraint("Symmetric", 7, 3, 19, 3, -1, 1))
sketch5.addConstraint(Sketcher.Constraint("Symmetric", 11, 3, 21, 3, -1, 1))
sketch5.addConstraint(Sketcher.Constraint("Symmetric", 5, 3, 13, 3, -2))
sketch5.addConstraint(Sketcher.Constraint("Symmetric", 7, 3, 15, 3, -2))
sketch5.addConstraint(Sketcher.Constraint("Symmetric", 9, 3, 23, 3, -1))
sketch5.addConstraint(Sketcher.Constraint("Diameter", 0, Q("70 mm")))
sketch5.addConstraint(Sketcher.Constraint("Radius", 1, Q("5 mm")))
sketch5.addConstraint(Sketcher.Constraint("DistanceY", 10, 1, 10, 2, Q("31 mm")))
sketch5.addConstraint(Sketcher.Constraint("Angle", 2, Q("30 deg")))
sketch5.addConstraint(Sketcher.Constraint("Distance", 2, Q("31 mm")))
sketch5.addConstraint(Sketcher.Constraint("DistanceY", 1, 3, -1, 1, Q("44 mm")))
sketch5.addConstraint(Sketcher.Constraint("DistanceY", -1, 1, 9, 3, Q("57 mm")))
sketch5.addConstraint(Sketcher.Constraint("DistanceX", 7, 1, -1, 1, Q("51.863448 mm")))
sketch5.setExpression("Constraints[46]", "Params.sketch5_diameter")
sketch5.setExpression("Constraints[47]", "Params.sketch5_radius")
sketch5.setExpression("Constraints[48]", "Params.sketch5_height")
sketch5.setExpression("Constraints[50]", "Params.sketch5_length")
pocket4 = doc.addObject("PartDesign::Pocket", "Pocket003")
body.addObject(pocket4)
pocket4.Profile = sketch5
pocket4.setExpression("Length", "Params.pocket4_length")
pocket4.Reversed = True

sketch6 = doc.addObject("Sketcher::SketchObject", "Sketch005")
body.addObject(sketch6)
sketch6.AttachmentSupport = (doc.XY_Plane, [""])
sketch6.MapMode = "FlatFace"
sketch6.AttachmentOffset = App.Placement(App.Vector(0, 0, 8), App.Rotation())
sketch6.addGeometry(Part.Circle(App.Vector(14.1, 14.1, 0), App.Vector(0, 0, 1), 2), False)
sketch6.addConstraint(Sketcher.Constraint("Diameter", 0, Q("4 mm")))
sketch6.addConstraint(Sketcher.Constraint("DistanceX", -1, 1, 0, 3, Q("14.142136 mm")))
sketch6.addConstraint(Sketcher.Constraint("DistanceY", -1, 1, 0, 3, Q("14.142136 mm")))
sketch6.setExpression("Constraints[0]", "Params.sketch6_diameter")
pocket5 = doc.addObject("PartDesign::Pocket", "Pocket004")
body.addObject(pocket5)
pocket5.Profile = sketch6
pocket5.setExpression("Length", "Params.pocket5_length")

doc.recompute()
